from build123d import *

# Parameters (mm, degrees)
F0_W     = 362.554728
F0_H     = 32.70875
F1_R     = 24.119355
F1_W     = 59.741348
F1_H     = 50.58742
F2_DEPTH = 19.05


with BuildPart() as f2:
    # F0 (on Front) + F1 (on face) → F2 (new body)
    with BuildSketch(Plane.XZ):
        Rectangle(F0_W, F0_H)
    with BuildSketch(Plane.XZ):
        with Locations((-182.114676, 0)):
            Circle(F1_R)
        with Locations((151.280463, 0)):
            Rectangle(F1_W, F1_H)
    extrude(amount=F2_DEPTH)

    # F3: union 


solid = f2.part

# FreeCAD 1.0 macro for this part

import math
import FreeCAD as App
import Part
import Sketcher
from FreeCAD import Vector
Q = App.Units.Quantity

doc = App.newDocument("Part")
body = doc.addObject("PartDesign::Body", "Body")

# Sketch on XZ plane
sketch1 = doc.addObject("Sketcher::SketchObject", "Sketch")
body.addObject(sketch1)
sketch1.AttachmentSupport = (doc.XZ_Plane, [""])
sketch1.MapMode = "FlatFace"
sketch1.addGeometry([
    Part.ArcOfCircle(Part.Circle(Vector(-182.114676, 0, 0), Vector(0, 0, 1), 24.119355), math.radians(42.692247), math.radians(317.307753)),  # 0
    Part.LineSegment(Vector(-164.386797, -16.354375, 0), Vector(121.409789, -16.354375, 0)),  # 1
    Part.LineSegment(Vector(121.409789, -16.354375, 0), Vector(121.409789, -25.29371, 0)),  # 2
    Part.LineSegment(Vector(121.409789, -25.29371, 0), Vector(181.151137, -25.29371, 0)),  # 3
    Part.LineSegment(Vector(181.151137, -25.29371, 0), Vector(181.151137, -16.354375, 0)),  # 4
    Part.LineSegment(Vector(181.151137, -16.354375, 0), Vector(181.277364, -16.354375, 0)),  # 5
    Part.LineSegment(Vector(181.277364, -16.354375, 0), Vector(181.277364, 16.354375, 0)),  # 6
    Part.LineSegment(Vector(181.277364, 16.354375, 0), Vector(181.151137, 16.354375, 0)),  # 7
    Part.LineSegment(Vector(181.151137, 16.354375, 0), Vector(181.151137, 25.29371, 0)),  # 8
    Part.LineSegment(Vector(181.151137, 25.29371, 0), Vector(121.409789, 25.29371, 0)),  # 9
    Part.LineSegment(Vector(121.409789, 25.29371, 0), Vector(121.409789, 16.354375, 0)),  # 10
    Part.LineSegment(Vector(121.409789, 16.354375, 0), Vector(-164.386797, 16.354375, 0)),  # 11
], False)
sketch1.addConstraint([
    Sketcher.Constraint("Coincident", 0, 2, 1, 1),
    Sketcher.Constraint("Coincident", 1, 2, 2, 1),
    Sketcher.Constraint("Coincident", 2, 2, 3, 1),
    Sketcher.Constraint("Coincident", 3, 2, 4, 1),
    Sketcher.Constraint("Coincident", 4, 2, 5, 1),
    Sketcher.Constraint("Coincident", 5, 2, 6, 1),
    Sketcher.Constraint("Coincident", 6, 2, 7, 1),
    Sketcher.Constraint("Coincident", 7, 2, 8, 1),
    Sketcher.Constraint("Coincident", 8, 2, 9, 1),
    Sketcher.Constraint("Coincident", 9, 2, 10, 1),
    Sketcher.Constraint("Coincident", 10, 2, 11, 1),
    Sketcher.Constraint("Coincident", 11, 2, 0, 1),
    Sketcher.Constraint("Horizontal", 1),
    Sketcher.Constraint("Vertical", 2),
    Sketcher.Constraint("Horizontal", 3),
    Sketcher.Constraint("Vertical", 4),
    Sketcher.Constraint("Horizontal", 5),
    Sketcher.Constraint("Vertical", 6),
    Sketcher.Constraint("Horizontal", 7),
    Sketcher.Constraint("Vertical", 8),
    Sketcher.Constraint("Horizontal", 9),
    Sketcher.Constraint("Vertical", 10),
    Sketcher.Constraint("Horizontal", 11),
    Sketcher.Constraint("Symmetric", 4, 2, 7, 2, -1),
    Sketcher.Constraint("Symmetric", 2, 2, 9, 2, -1),
    Sketcher.Constraint("Symmetric", 0, 2, 11, 2, -1),
    Sketcher.Constraint("Horizontal", 1, 2, 4, 2),
    Sketcher.Constraint("Radius", 0, 24.119355),
    Sketcher.Constraint("DistanceX", 3, 1, 3, 2, 59.741348),
    Sketcher.Constraint("DistanceY", 6, 1, 6, 2, 32.70875),
    Sketcher.Constraint("DistanceX", 1, 1, 1, 2, 285.796586),
    Sketcher.Constraint("DistanceX", 5, 1, 5, 2, 0.126227),
    Sketcher.Constraint("DistanceY", 2, 2, 2, 1, 8.939335),
    Sketcher.Constraint("DistanceX", -1, 1, 1, 2, 121.409789),
])
pad1 = doc.addObject("PartDesign::Pad", "Pad")
body.addObject(pad1)
pad1.Profile = sketch1
pad1.Length = Q("0.75 in")

doc.recompute()
